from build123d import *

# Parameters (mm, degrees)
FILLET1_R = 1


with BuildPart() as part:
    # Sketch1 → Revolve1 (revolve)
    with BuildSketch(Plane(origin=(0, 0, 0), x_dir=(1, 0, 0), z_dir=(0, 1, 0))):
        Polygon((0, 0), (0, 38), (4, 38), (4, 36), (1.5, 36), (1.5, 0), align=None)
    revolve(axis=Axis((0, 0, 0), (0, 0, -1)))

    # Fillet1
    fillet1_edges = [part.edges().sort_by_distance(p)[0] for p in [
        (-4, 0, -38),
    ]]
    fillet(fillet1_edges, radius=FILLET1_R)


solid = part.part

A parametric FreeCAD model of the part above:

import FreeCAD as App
import Part
import Sketcher


def edges_at(feature, points):
    """Names of the edges that pass closest to the given points."""
    edges = feature.Shape.Edges
    near = lambda p: min(range(len(edges)), key=lambda i: edges[i].distToShape(Part.Vertex(*p))[0])
    return sorted({f"Edge{near(p) + 1}" for p in points})


def add_polygon(sketch, points):
    """Adds a closed chain of lines whose ends are joined by coincident constraints."""
    first, n = sketch.GeometryCount, len(points)
    for a, b in zip(points, points[1:] + points[:1]):
        sketch.addGeometry(Part.LineSegment(App.Vector(*a, 0), App.Vector(*b, 0)), False)
    for i in range(n):
        sketch.addConstraint(Sketcher.Constraint("Coincident", first + i, 2, first + (i + 1) % n, 1))

doc = App.newDocument("Part")
body = doc.addObject("PartDesign::Body", "Body")

sketch1 = body.newObject("Sketcher::SketchObject", "Sketch")
sketch1.AttachmentSupport = (doc.getObject("XZ_Plane"), [""])
sketch1.MapMode = "FlatFace"
add_polygon(sketch1, [(0, -38), (0, 0), (1.5, 0), (1.5, -36), (4, -36), (4, -38)])
sketch1.addConstraint(Sketcher.Constraint("Vertical", 0))
sketch1.addConstraint(Sketcher.Constraint("Horizontal", 1))
sketch1.addConstraint(Sketcher.Constraint("Vertical", 2))
sketch1.addConstraint(Sketcher.Constraint("Horizontal", 3))
sketch1.addConstraint(Sketcher.Constraint("Vertical", 4))
sketch1.addConstraint(Sketcher.Constraint("Horizontal", 5))
sketch1.addConstraint(Sketcher.Constraint("Coincident", 0, 2, -1, 1))
sketch1.addConstraint(Sketcher.Constraint("DistanceX", 5, 2, 5, 1, 4.0))
sketch1.addConstraint(Sketcher.Constraint("DistanceY", 0, 1, 0, 2, 38.0))
sketch1.addConstraint(Sketcher.Constraint("DistanceY", 2, 2, 2, 1, 36.0))
sketch1.addConstraint(Sketcher.Constraint("DistanceX", 1, 1, 1, 2, 1.5))
revolution = body.newObject("PartDesign::Revolution", "Revolution")
revolution.Profile = sketch1
revolution.ReferenceAxis = (sketch1, ["V_Axis"])
revolution.Angle = 360
doc.recompute()

fillet = body.newObject("PartDesign::Fillet", "Fillet")
fillet.Base = (revolution, edges_at(revolution, [(-4, 0, -38)]))
fillet.Radius = 1

doc.recompute()
